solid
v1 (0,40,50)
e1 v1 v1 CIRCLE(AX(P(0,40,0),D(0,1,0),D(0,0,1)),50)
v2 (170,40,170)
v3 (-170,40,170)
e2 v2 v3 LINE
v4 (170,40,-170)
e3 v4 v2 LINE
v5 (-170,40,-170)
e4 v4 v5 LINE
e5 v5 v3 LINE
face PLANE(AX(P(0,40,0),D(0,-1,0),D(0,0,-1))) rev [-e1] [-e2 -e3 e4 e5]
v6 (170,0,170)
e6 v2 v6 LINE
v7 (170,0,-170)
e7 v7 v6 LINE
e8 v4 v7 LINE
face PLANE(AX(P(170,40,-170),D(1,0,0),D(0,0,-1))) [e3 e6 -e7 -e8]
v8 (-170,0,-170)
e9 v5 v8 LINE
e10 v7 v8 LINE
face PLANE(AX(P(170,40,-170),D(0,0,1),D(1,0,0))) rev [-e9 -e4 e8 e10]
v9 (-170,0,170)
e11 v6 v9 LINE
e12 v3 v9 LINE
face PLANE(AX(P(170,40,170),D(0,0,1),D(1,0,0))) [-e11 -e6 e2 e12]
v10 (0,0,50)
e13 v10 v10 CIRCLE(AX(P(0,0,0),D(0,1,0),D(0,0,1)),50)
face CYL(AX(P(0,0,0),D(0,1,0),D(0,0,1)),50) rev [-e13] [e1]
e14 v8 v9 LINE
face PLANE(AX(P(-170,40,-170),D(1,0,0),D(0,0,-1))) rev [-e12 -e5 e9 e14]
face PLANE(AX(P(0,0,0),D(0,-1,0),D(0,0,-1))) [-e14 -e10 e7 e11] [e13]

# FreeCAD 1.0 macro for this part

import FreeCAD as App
import Part
import Sketcher
from FreeCAD import Vector
Q = App.Units.Quantity


def add_polygon(sketch, points):
    """Adds a closed chain of lines whose ends are joined by coincident constraints."""
    first, n = sketch.GeometryCount, len(points)
    for a, b in zip(points, points[1:] + points[:1]):
        sketch.addGeometry(Part.LineSegment(App.Vector(*a, 0), App.Vector(*b, 0)), False)
    for i in range(n):
        sketch.addConstraint(Sketcher.Constraint("Coincident", first + i, 2, first + (i + 1) % n, 1))

doc = App.newDocument("Part")
body = doc.addObject("PartDesign::Body", "Body")

# Sketch on XZ plane
sketch1 = doc.addObject("Sketcher::SketchObject", "Sketch")
body.addObject(sketch1)
sketch1.AttachmentSupport = (doc.XZ_Plane, [""])
sketch1.MapMode = "FlatFace"
add_polygon(sketch1, [(-170, -170), (-170, 170), (170, 170), (170, -170)])  # lines 0-3
sketch1.addConstraint(Sketcher.Constraint("Vertical", 0))
sketch1.addConstraint(Sketcher.Constraint("Horizontal", 1))
sketch1.addConstraint(Sketcher.Constraint("Vertical", 2))
sketch1.addConstraint(Sketcher.Constraint("Horizontal", 3))
sketch1.addConstraint(Sketcher.Constraint("Symmetric", 0, 2, 2, 2, -1, 1))
sketch1.addConstraint(Sketcher.Constraint("Equal", 3, 0))
sketch1.addConstraint(Sketcher.Constraint("DistanceX", 1, 1, 1, 2, Q("340 mm")))
pad1 = doc.addObject("PartDesign::Pad", "Pad")
body.addObject(pad1)
pad1.Profile = sketch1
pad1.Length = 40
pad1.Reversed = True

# Sketch on XZ plane
sketch2 = doc.addObject("Sketcher::SketchObject", "Sketch001")
body.addObject(sketch2)
sketch2.AttachmentSupport = (doc.XZ_Plane, [""])
sketch2.MapMode = "FlatFace"
sketch2.AttachmentOffset = App.Placement(Vector(0, 0, -40), App.Rotation())
sketch2.addGeometry(Part.Circle(Vector(0, 0, 0), Vector(0, 0, 1), 50), False)
sketch2.addConstraint(Sketcher.Constraint("Coincident", 0, 3, -1, 1))
sketch2.addConstraint(Sketcher.Constraint("Diameter", 0, Q("100 mm")))
pocket1 = doc.addObject("PartDesign::Pocket", "Pocket")
body.addObject(pocket1)
pocket1.Profile = sketch2
pocket1.Length = 40
pocket1.Reversed = True

doc.recompute()
